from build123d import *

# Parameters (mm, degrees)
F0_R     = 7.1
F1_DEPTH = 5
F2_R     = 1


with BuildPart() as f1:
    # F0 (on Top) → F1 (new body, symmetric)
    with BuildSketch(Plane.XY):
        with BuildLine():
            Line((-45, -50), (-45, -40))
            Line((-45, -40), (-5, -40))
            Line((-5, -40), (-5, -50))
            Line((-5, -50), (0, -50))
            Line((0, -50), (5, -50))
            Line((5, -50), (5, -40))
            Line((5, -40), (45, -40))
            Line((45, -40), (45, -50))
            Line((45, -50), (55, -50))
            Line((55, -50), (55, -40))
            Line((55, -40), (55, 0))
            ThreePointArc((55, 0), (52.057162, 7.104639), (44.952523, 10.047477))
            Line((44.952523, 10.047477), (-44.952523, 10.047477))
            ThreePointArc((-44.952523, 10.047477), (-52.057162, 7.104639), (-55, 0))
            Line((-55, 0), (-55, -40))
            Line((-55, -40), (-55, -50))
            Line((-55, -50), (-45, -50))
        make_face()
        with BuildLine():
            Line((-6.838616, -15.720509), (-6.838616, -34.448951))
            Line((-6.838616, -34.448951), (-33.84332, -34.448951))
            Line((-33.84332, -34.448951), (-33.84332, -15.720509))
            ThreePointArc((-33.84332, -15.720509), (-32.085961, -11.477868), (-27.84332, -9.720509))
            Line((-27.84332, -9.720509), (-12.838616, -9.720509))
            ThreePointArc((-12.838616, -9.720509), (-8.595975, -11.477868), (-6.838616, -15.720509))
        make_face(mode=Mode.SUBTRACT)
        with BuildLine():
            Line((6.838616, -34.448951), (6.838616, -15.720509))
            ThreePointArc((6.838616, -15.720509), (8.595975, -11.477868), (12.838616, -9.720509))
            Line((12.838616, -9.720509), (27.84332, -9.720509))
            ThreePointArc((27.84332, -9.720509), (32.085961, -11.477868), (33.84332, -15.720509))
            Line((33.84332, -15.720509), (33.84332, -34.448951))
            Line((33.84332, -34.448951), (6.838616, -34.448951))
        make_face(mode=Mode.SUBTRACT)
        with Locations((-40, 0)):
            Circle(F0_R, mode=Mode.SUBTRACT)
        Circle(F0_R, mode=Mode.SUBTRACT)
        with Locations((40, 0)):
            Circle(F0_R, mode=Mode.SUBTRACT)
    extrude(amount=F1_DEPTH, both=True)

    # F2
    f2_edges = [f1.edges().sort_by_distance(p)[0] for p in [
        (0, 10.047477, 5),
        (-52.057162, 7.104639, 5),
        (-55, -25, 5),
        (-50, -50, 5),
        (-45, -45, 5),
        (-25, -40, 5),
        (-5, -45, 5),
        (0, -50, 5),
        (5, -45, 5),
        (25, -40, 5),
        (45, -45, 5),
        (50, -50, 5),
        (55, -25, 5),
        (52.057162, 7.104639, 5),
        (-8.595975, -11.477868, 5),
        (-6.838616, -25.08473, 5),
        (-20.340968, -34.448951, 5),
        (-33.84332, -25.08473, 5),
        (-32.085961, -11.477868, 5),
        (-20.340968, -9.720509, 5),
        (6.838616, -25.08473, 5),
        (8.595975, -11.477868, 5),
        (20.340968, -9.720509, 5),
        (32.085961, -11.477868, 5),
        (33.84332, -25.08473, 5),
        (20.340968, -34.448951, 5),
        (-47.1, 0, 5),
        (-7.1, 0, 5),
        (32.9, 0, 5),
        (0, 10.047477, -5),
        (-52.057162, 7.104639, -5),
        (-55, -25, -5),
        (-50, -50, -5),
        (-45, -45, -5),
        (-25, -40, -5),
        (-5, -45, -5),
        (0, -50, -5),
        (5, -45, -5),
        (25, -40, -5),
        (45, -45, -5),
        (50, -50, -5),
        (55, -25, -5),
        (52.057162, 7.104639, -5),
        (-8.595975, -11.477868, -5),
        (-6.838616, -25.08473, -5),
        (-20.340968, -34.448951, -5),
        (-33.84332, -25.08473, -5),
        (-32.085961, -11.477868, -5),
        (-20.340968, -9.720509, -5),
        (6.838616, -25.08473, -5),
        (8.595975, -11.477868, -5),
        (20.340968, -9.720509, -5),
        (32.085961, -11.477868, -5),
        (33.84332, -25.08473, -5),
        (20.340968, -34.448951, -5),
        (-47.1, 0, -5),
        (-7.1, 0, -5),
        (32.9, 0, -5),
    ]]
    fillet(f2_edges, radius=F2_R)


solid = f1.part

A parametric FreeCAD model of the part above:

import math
import FreeCAD as App
import Part
import Sketcher
Q = App.Units.Quantity


def edges_at(feature, points):
    """Names of the edges that pass closest to the given points."""
    edges = feature.Shape.Edges
    near = lambda p: min(range(len(edges)), key=lambda i: edges[i].distToShape(Part.Vertex(*p))[0])
    return sorted({f"Edge{near(p) + 1}" for p in points})

doc = App.newDocument("Part")
body = doc.addObject("PartDesign::Body", "Body")

# Sketch on XY plane
sketch1 = doc.addObject("Sketcher::SketchObject", "Sketch")
body.addObject(sketch1)
sketch1.AttachmentSupport = (doc.XY_Plane, [""])
sketch1.MapMode = "FlatFace"
sketch1.addGeometry([
    Part.LineSegment(App.Vector(-45, -50, 0), App.Vector(-45, -40, 0)),  # 0
    Part.LineSegment(App.Vector(-45, -40, 0), App.Vector(-5, -40, 0)),  # 1
    Part.LineSegment(App.Vector(-5, -40, 0), App.Vector(-5, -50, 0)),  # 2
    Part.LineSegment(App.Vector(-5, -50, 0), App.Vector(5, -50, 0)),  # 3
    Part.LineSegment(App.Vector(5, -50, 0), App.Vector(5, -40, 0)),  # 4
    Part.LineSegment(App.Vector(5, -40, 0), App.Vector(45, -40, 0)),  # 5
    Part.LineSegment(App.Vector(45, -40, 0), App.Vector(45, -50, 0)),  # 6
    Part.LineSegment(App.Vector(45, -50, 0), App.Vector(55, -50, 0)),  # 7
    Part.LineSegment(App.Vector(55, -50, 0), App.Vector(55, 0, 0)),  # 8
    Part.ArcOfCircle(Part.Circle(App.Vector(45, 0, 0), App.Vector(0, 0, 1), 10), math.radians(0), math.radians(90)),  # 9
    Part.LineSegment(App.Vector(45, 10, 0), App.Vector(-45, 10, 0)),  # 10
    Part.ArcOfCircle(Part.Circle(App.Vector(-45, 0, 0), App.Vector(0, 0, 1), 10), math.radians(90), math.radians(180)),  # 11
    Part.LineSegment(App.Vector(-55, 0, 0), App.Vector(-55, -50, 0)),  # 12
    Part.LineSegment(App.Vector(-55, -50, 0), App.Vector(-45, -50, 0)),  # 13
    Part.ArcOfCircle(Part.Circle(App.Vector(-13, -16, 0), App.Vector(0, 0, 1), 6), math.radians(0), math.radians(90)),  # 14
    Part.LineSegment(App.Vector(-7, -16, 0), App.Vector(-7, -34, 0)),  # 15
    Part.LineSegment(App.Vector(-7, -34, 0), App.Vector(-34, -34, 0)),  # 16
    Part.LineSegment(App.Vector(-34, -34, 0), App.Vector(-34, -16, 0)),  # 17
    Part.ArcOfCircle(Part.Circle(App.Vector(-28, -16, 0), App.Vector(0, 0, 1), 6), math.radians(90), math.radians(180)),  # 18
    Part.LineSegment(App.Vector(-28, -10, 0), App.Vector(-13, -10, 0)),  # 19
    Part.LineSegment(App.Vector(34, -34, 0), App.Vector(7, -34, 0)),  # 20
    Part.LineSegment(App.Vector(7, -34, 0), App.Vector(7, -16, 0)),  # 21
    Part.ArcOfCircle(Part.Circle(App.Vector(13, -16, 0), App.Vector(0, 0, 1), 6), math.radians(90), math.radians(180)),  # 22
    Part.LineSegment(App.Vector(13, -10, 0), App.Vector(28, -10, 0)),  # 23
    Part.ArcOfCircle(Part.Circle(App.Vector(28, -16, 0), App.Vector(0, 0, 1), 6), math.radians(0), math.radians(90)),  # 24
    Part.LineSegment(App.Vector(34, -16, 0), App.Vector(34, -34, 0)),  # 25
    Part.Circle(App.Vector(-40, 0, 0), App.Vector(0, 0, 1), 7),  # 26
    Part.Circle(App.Vector(0, 0, 0), App.Vector(0, 0, 1), 7),  # 27
    Part.Circle(App.Vector(40, 0, 0), App.Vector(0, 0, 1), 7),  # 28
], False)
sketch1.addConstraint([
    Sketcher.Constraint("Coincident", 0, 2, 1, 1),
    Sketcher.Constraint("Coincident", 1, 2, 2, 1),
    Sketcher.Constraint("Coincident", 2, 2, 3, 1),
    Sketcher.Constraint("Coincident", 3, 2, 4, 1),
    Sketcher.Constraint("Coincident", 4, 2, 5, 1),
    Sketcher.Constraint("Coincident", 5, 2, 6, 1),
    Sketcher.Constraint("Coincident", 6, 2, 7, 1),
    Sketcher.Constraint("Coincident", 7, 2, 8, 1),
    Sketcher.Constraint("Tangent", 8, 2, 9, 1),
    Sketcher.Constraint("Tangent", 9, 2, 10, 1),
    Sketcher.Constraint("Tangent", 10, 2, 11, 1),
    Sketcher.Constraint("Tangent", 11, 2, 12, 1),
    Sketcher.Constraint("Coincident", 12, 2, 13, 1),
    Sketcher.Constraint("Coincident", 13, 2, 0, 1),
    Sketcher.Constraint("Tangent", 14, 1, 15, 1),
    Sketcher.Constraint("Coincident", 15, 2, 16, 1),
    Sketcher.Constraint("Coincident", 16, 2, 17, 1),
    Sketcher.Constraint("Tangent", 17, 2, 18, 2),
    Sketcher.Constraint("Tangent", 18, 1, 19, 1),
    Sketcher.Constraint("Tangent", 19, 2, 14, 2),
    Sketcher.Constraint("Coincident", 20, 2, 21, 1),
    Sketcher.Constraint("Tangent", 21, 2, 22, 2),
    Sketcher.Constraint("Tangent", 22, 1, 23, 1),
    Sketcher.Constraint("Tangent", 23, 2, 24, 2),
    Sketcher.Constraint("Tangent", 24, 1, 25, 1),
    Sketcher.Constraint("Coincident", 25, 2, 20, 1),
    Sketcher.Constraint("Vertical", 0),
    Sketcher.Constraint("Horizontal", 1),
    Sketcher.Constraint("Vertical", 2),
    Sketcher.Constraint("Horizontal", 3),
    Sketcher.Constraint("Vertical", 4),
    Sketcher.Constraint("Horizontal", 5),
    Sketcher.Constraint("Vertical", 6),
    Sketcher.Constraint("Horizontal", 7),
    Sketcher.Constraint("Vertical", 8),
    Sketcher.Constraint("Horizontal", 10),
    Sketcher.Constraint("Vertical", 12),
    Sketcher.Constraint("Horizontal", 13),
    Sketcher.Constraint("Vertical", 15),
    Sketcher.Constraint("Horizontal", 16),
    Sketcher.Constraint("Vertical", 17),
    Sketcher.Constraint("Horizontal", 19),
    Sketcher.Constraint("Horizontal", 20),
    Sketcher.Constraint("Vertical", 21),
    Sketcher.Constraint("Horizontal", 23),
    Sketcher.Constraint("Vertical", 25),
    Sketcher.Constraint("Coincident", 27, 3, -1, 1),
    Sketcher.Constraint("Equal", 9, 11),
    Sketcher.Constraint("Equal", 14, 18),
    Sketcher.Constraint("Equal", 18, 22),
    Sketcher.Constraint("Equal", 22, 24),
    Sketcher.Constraint("Equal", 26, 27),
    Sketcher.Constraint("Equal", 27, 28),
    Sketcher.Constraint("Symmetric", 9, 3, 11, 3, -1, 1),
    Sketcher.Constraint("Symmetric", 26, 3, 28, 3, -1, 1),
    Sketcher.Constraint("Symmetric", 14, 3, 22, 3, -2),
    Sketcher.Constraint("Symmetric", 1, 2, 4, 2, -2),
    Sketcher.Constraint("Symmetric", 6, 2, 13, 2, -2),
    Sketcher.Constraint("Symmetric", 16, 2, 25, 2, -2),
    Sketcher.Constraint("PointOnObject", 26, 3, -1),
    Sketcher.Constraint("Horizontal", 3, 2, 6, 2),
    Sketcher.Constraint("Equal", 3, 7),
    Sketcher.Constraint("Equal", 13, 0),
    Sketcher.Constraint("Radius", 14, Q("5.999999 mm")),
    Sketcher.Constraint("Diameter", 26, Q("14.2 mm")),
    Sketcher.Constraint("DistanceX", 1, 1, 1, 2, Q("40 mm")),
    Sketcher.Constraint("DistanceX", 3, 1, 3, 2, Q("10 mm")),
    Sketcher.Constraint("DistanceY", 8, 1, 8, 2, Q("50 mm")),
    Sketcher.Constraint("DistanceX", 26, 3, -1, 1, Q("40 mm")),
    Sketcher.Constraint("Radius", 9, Q("10.047477 mm")),
    Sketcher.Constraint("DistanceX", 11, 3, 18, 3, Q("17.109202 mm")),
    Sketcher.Constraint("DistanceX", 16, 2, 16, 1, Q("27.004704 mm")),
    Sketcher.Constraint("DistanceY", 15, 2, 15, 1, Q("18.728442 mm")),
    Sketcher.Constraint("DistanceY", 14, 1, -1, 1, Q("15.720509 mm")),
])
pad1 = doc.addObject("PartDesign::Pad", "Pad")
body.addObject(pad1)
pad1.Profile = sketch1
pad1.Length = 10
pad1.Midplane = True
doc.recompute()

fillet = doc.addObject("PartDesign::Fillet", "Fillet")
body.addObject(fillet)
fillet.Base = (pad1, edges_at(pad1, [
    (0, 10.047, 5),
    (-52.057, 7.105, 5),
    (-55, -25, 5),
    (-50, -50, 5),
    (-45, -45, 5),
    (-25, -40, 5),
    (-5, -45, 5),
    (0, -50, 5),
    (5, -45, 5),
    (25, -40, 5),
    (45, -45, 5),
    (50, -50, 5),
    (55, -25, 5),
    (52.057, 7.105, 5),
    (-8.596, -11.478, 5),
    (-6.839, -25.085, 5),
    (-20.341, -34.449, 5),
    (-33.843, -25.085, 5),
    (-32.086, -11.478, 5),
    (-20.341, -9.721, 5),
    (6.839, -25.085, 5),
    (8.596, -11.478, 5),
    (20.341, -9.721, 5),
    (32.086, -11.478, 5),
    (33.843, -25.085, 5),
    (20.341, -34.449, 5),
    (-47.1, 0, 5),
    (-7.1, 0, 5),
    (32.9, 0, 5),
    (0, 10.047, -5),
    (-52.057, 7.105, -5),
    (-55, -25, -5),
    (-50, -50, -5),
    (-45, -45, -5),
    (-25, -40, -5),
    (-5, -45, -5),
    (0, -50, -5),
    (5, -45, -5),
    (25, -40, -5),
    (45, -45, -5),
    (50, -50, -5),
    (55, -25, -5),
    (52.057, 7.105, -5),
    (-8.596, -11.478, -5),
    (-6.839, -25.085, -5),
    (-20.341, -34.449, -5),
    (-33.843, -25.085, -5),
    (-32.086, -11.478, -5),
    (-20.341, -9.721, -5),
    (6.839, -25.085, -5),
    (8.596, -11.478, -5),
    (20.341, -9.721, -5),
    (32.086, -11.478, -5),
    (33.843, -25.085, -5),
    (20.341, -34.449, -5),
    (-47.1, 0, -5),
    (-7.1, 0, -5),
    (32.9, 0, -5),
]))
fillet.Radius = 1

doc.recompute()
